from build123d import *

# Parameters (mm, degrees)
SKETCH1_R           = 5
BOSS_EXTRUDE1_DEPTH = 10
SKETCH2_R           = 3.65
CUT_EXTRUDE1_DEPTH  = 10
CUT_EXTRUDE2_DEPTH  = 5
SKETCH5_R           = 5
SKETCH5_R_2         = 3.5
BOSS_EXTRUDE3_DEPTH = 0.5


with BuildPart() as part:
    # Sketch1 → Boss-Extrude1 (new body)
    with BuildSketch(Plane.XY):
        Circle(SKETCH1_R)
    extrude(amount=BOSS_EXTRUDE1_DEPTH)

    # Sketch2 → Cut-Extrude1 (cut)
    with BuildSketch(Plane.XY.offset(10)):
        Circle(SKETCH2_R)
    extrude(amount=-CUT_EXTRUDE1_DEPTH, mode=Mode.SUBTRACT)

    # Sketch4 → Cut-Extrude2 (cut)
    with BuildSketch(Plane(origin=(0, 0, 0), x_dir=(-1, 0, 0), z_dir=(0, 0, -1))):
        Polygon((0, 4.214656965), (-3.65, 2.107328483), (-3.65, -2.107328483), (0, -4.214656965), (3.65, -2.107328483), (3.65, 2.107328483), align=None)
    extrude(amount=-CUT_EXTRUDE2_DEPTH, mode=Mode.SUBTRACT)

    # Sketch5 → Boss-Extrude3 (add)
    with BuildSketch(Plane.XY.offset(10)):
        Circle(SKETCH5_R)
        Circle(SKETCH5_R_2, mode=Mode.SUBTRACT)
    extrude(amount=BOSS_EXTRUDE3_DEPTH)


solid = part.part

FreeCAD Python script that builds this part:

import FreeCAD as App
import Part
import Sketcher

V = App.Vector
Q = App.Units.Quantity

doc = App.newDocument("Part")
params = doc.addObject("Spreadsheet::Sheet", "Params")
for row, (alias, value) in enumerate([
    ("sketch1_diameter", "10 mm"),
    ("pad1_length", "10 mm"),
    ("sketch2_diameter", "7.3 mm"),
    ("pocket1_length", "10 mm"),
    ("pocket2_length", "5 mm"),
    ("sketch4_diameter", "10 mm"),
    ("sketch4_diameter2", "7 mm"),
    ("pad2_length", "0.5 mm"),
], start=1):
    params.set(f"A{row}", alias)
    params.set(f"B{row}", "=" + value)
    params.setAlias(f"B{row}", alias)

body = doc.addObject("PartDesign::Body", "Body")

# Sketch on XY plane
sketch1 = body.newObject("Sketcher::SketchObject", "Sketch")
sketch1.AttachmentSupport = (doc.getObject("XY_Plane"), [""])
sketch1.MapMode = "FlatFace"
sketch1.addGeometry(Part.Circle(V(0, 0, 0), V(0, 0, 1), 5), False)
sketch1.addConstraint([
    Sketcher.Constraint("Coincident", 0, 3, -1, 1),
    Sketcher.Constraint("Diameter", 0, 10.0),
])
sketch1.setExpression("Constraints[1]", "Params.sketch1_diameter")
pad1 = body.newObject("PartDesign::Pad", "Pad")
pad1.Profile = sketch1
pad1.setExpression("Length", "Params.pad1_length")

# Sketch on XY plane
sketch2 = body.newObject("Sketcher::SketchObject", "Sketch001")
sketch2.AttachmentSupport = (doc.getObject("XY_Plane"), [""])
sketch2.MapMode = "FlatFace"
sketch2.AttachmentOffset = App.Placement(V(0, 0, 10), App.Rotation())
sketch2.addGeometry(Part.Circle(V(0, 0, 0), V(0, 0, 1), 3.65), False)
sketch2.addConstraint([
    Sketcher.Constraint("Coincident", 0, 3, -1, 1),
    Sketcher.Constraint("Diameter", 0, 7.3),
])
sketch2.setExpression("Constraints[1]", "Params.sketch2_diameter")
pocket1 = body.newObject("PartDesign::Pocket", "Pocket")
pocket1.Profile = sketch2
pocket1.setExpression("Length", "Params.pocket1_length")

# Sketch on XY plane
sketch3 = body.newObject("Sketcher::SketchObject", "Sketch002")
sketch3.AttachmentSupport = (doc.getObject("XY_Plane"), [""])
sketch3.MapMode = "FlatFace"
sketch3.addGeometry([
    Part.LineSegment(V(0, 4.214657, 0), V(3.65, 2.107328, 0)),  # 0
    Part.LineSegment(V(3.65, 2.107328, 0), V(3.65, -2.107328, 0)),  # 1
    Part.LineSegment(V(3.65, -2.107328, 0), V(0, -4.214657, 0)),  # 2
    Part.LineSegment(V(0, -4.214657, 0), V(-3.65, -2.107328, 0)),  # 3
    Part.LineSegment(V(-3.65, -2.107328, 0), V(-3.65, 2.107328, 0)),  # 4
    Part.LineSegment(V(-3.65, 2.107328, 0), V(0, 4.214657, 0)),  # 5
], False)
sketch3.addConstraint([
    Sketcher.Constraint("Coincident", 0, 2, 1, 1),
    Sketcher.Constraint("Coincident", 1, 2, 2, 1),
    Sketcher.Constraint("Coincident", 2, 2, 3, 1),
    Sketcher.Constraint("Coincident", 3, 2, 4, 1),
    Sketcher.Constraint("Coincident", 4, 2, 5, 1),
    Sketcher.Constraint("Coincident", 5, 2, 0, 1),
    Sketcher.Constraint("Vertical", 1),
    Sketcher.Constraint("Vertical", 4),
    Sketcher.Constraint("Symmetric", 0, 2, 3, 2, -1, 1),
    Sketcher.Constraint("Symmetric", 2, 2, 5, 2, -1, 1),
    Sketcher.Constraint("PointOnObject", 2, 2, -2),
    Sketcher.Constraint("Parallel", 2, 5),
    Sketcher.Constraint("Horizontal", 1, 2, 3, 2),
    Sketcher.Constraint("Angle", 0, Q("-30 deg")),
    Sketcher.Constraint("DistanceX", 3, 2, 1, 2, 7.3),
    Sketcher.Constraint("DistanceY", 1, 2, 1, 1, 4.214657),
])
pocket2 = body.newObject("PartDesign::Pocket", "Pocket001")
pocket2.Profile = sketch3
pocket2.setExpression("Length", "Params.pocket2_length")
pocket2.Reversed = True

# Sketch on XY plane
sketch4 = body.newObject("Sketcher::SketchObject", "Sketch003")
sketch4.AttachmentSupport = (doc.getObject("XY_Plane"), [""])
sketch4.MapMode = "FlatFace"
sketch4.AttachmentOffset = App.Placement(V(0, 0, 10), App.Rotation())
sketch4.addGeometry([
    Part.Circle(V(0, 0, 0), V(0, 0, 1), 5),
    Part.Circle(V(0, 0, 0), V(0, 0, 1), 3.5),
], False)
sketch4.addConstraint([
    Sketcher.Constraint("Coincident", 0, 3, -1, 1),
    Sketcher.Constraint("Coincident", 1, 3, -1, 1),
    Sketcher.Constraint("Diameter", 0, 10.0),
    Sketcher.Constraint("Diameter", 1, 7.0),
])
sketch4.setExpression("Constraints[2]", "Params.sketch4_diameter")
sketch4.setExpression("Constraints[3]", "Params.sketch4_diameter2")
pad2 = body.newObject("PartDesign::Pad", "Pad001")
pad2.Profile = sketch4
pad2.setExpression("Length", "Params.pad2_length")

doc.recompute()
